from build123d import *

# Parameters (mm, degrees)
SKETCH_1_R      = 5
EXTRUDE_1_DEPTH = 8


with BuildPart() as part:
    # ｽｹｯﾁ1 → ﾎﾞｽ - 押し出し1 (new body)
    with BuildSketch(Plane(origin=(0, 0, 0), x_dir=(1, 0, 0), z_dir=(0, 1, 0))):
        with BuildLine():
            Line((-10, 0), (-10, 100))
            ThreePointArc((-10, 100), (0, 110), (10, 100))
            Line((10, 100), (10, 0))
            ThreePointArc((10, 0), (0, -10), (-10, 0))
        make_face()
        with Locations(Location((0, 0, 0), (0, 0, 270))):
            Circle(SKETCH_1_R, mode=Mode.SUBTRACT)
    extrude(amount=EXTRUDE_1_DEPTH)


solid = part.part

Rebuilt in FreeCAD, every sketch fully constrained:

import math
import FreeCAD as App
import Part
import Sketcher
from FreeCAD import Vector

doc = App.newDocument("Part")
body = doc.addObject("PartDesign::Body", "Body")

# Sketch on XZ plane
sketch1 = body.newObject("Sketcher::SketchObject", "Sketch")
sketch1.AttachmentSupport = (doc.getObject("XZ_Plane"), [""])
sketch1.MapMode = "FlatFace"
sketch1.addGeometry([
    Part.LineSegment(Vector(-10, -100, 0), Vector(-10, 0, 0)),  # 0
    Part.ArcOfCircle(Part.Circle(Vector(0, 0, 0), Vector(0, 0, 1), 10), math.radians(0), math.radians(180)),  # 1
    Part.LineSegment(Vector(10, 0, 0), Vector(10, -100, 0)),  # 2
    Part.ArcOfCircle(Part.Circle(Vector(0, -100, 0), Vector(0, 0, 1), 10), math.radians(180), math.radians(360)),  # 3
    Part.Circle(Vector(0, 0, 0), Vector(0, 0, 1), 5),  # 4
], False)
sketch1.addConstraint([
    Sketcher.Constraint("Tangent", 0, 2, 1, 2),
    Sketcher.Constraint("Tangent", 1, 1, 2, 1),
    Sketcher.Constraint("Tangent", 2, 2, 3, 2),
    Sketcher.Constraint("Tangent", 3, 1, 0, 1),
    Sketcher.Constraint("Vertical", 0),
    Sketcher.Constraint("Vertical", 2),
    Sketcher.Constraint("Coincident", 1, 3, -1, 1),
    Sketcher.Constraint("Coincident", 4, 3, -1, 1),
    Sketcher.Constraint("Diameter", 4, 10.0),
    Sketcher.Constraint("Radius", 1, 10.0),
    Sketcher.Constraint("DistanceY", 0, 1, 0, 2, 100.0),
])
pad1 = body.newObject("PartDesign::Pad", "Pad")
pad1.Profile = sketch1
pad1.Length = 8
pad1.Reversed = True

doc.recompute()
